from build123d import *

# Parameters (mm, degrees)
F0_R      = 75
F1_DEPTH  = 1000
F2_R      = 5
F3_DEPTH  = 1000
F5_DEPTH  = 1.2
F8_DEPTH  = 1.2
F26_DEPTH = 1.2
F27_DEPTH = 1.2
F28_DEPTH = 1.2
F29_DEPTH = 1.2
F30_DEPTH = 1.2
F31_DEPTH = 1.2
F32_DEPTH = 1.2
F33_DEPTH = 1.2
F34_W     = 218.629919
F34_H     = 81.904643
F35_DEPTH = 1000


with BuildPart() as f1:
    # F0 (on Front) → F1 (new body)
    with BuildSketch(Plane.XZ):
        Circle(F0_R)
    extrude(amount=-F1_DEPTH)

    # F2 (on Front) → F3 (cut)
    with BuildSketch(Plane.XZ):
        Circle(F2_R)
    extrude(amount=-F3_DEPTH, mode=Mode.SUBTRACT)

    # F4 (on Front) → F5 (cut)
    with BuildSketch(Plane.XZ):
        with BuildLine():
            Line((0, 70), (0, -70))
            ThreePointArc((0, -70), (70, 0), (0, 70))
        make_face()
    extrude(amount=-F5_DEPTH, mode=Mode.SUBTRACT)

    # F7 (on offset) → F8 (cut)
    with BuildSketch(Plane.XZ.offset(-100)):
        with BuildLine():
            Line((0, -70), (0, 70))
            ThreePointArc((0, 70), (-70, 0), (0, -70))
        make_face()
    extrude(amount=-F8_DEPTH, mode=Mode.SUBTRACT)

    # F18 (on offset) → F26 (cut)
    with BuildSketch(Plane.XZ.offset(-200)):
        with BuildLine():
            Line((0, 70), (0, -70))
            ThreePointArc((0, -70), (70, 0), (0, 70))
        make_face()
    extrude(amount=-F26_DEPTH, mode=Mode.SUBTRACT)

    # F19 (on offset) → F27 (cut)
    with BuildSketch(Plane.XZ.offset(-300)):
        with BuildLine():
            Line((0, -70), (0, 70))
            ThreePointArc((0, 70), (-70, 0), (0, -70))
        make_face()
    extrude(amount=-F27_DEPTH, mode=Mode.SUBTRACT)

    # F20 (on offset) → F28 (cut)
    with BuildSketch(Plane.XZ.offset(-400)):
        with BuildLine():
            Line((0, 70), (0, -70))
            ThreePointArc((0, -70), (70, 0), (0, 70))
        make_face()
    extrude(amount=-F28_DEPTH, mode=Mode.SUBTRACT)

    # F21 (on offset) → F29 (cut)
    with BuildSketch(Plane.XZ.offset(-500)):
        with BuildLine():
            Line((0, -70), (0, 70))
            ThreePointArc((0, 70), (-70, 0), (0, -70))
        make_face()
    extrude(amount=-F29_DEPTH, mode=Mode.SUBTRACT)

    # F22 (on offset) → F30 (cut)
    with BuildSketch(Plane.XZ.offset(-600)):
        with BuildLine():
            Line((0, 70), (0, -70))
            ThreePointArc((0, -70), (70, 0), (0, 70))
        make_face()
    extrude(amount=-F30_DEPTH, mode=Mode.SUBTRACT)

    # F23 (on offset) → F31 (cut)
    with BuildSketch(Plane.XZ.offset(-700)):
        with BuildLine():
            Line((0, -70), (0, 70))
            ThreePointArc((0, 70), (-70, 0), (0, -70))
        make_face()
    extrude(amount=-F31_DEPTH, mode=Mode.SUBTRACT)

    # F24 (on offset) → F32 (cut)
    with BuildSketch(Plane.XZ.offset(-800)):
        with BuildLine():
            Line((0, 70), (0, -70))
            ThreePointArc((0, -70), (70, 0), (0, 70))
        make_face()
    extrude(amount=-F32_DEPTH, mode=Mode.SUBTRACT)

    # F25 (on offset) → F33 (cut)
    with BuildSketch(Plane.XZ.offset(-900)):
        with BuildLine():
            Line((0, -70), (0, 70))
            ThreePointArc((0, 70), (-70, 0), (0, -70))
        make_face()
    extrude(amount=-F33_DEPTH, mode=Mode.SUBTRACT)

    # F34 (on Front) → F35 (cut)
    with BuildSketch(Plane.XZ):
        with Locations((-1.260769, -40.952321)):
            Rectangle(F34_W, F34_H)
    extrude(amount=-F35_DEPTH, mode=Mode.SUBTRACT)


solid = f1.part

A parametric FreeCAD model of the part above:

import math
import FreeCAD as App
import Part
import Sketcher
from FreeCAD import Vector
Q = App.Units.Quantity

doc = App.newDocument("Part")
body = doc.addObject("PartDesign::Body", "Body")

# Sketch on XZ plane
sketch1 = doc.addObject("Sketcher::SketchObject", "Sketch")
body.addObject(sketch1)
sketch1.AttachmentSupport = (doc.XZ_Plane, [""])
sketch1.MapMode = "FlatFace"
sketch1.addGeometry(Part.Circle(Vector(0, 0, 0), Vector(0, 0, 1), 75), False)
sketch1.addConstraint(Sketcher.Constraint("Coincident", 0, 3, -1, 1))
sketch1.addConstraint(Sketcher.Constraint("Diameter", 0, Q("150 mm")))
pad1 = doc.addObject("PartDesign::Pad", "Pad")
body.addObject(pad1)
pad1.Profile = sketch1
pad1.Length = 1000
pad1.Reversed = True

# Sketch on XZ plane
sketch2 = doc.addObject("Sketcher::SketchObject", "Sketch001")
body.addObject(sketch2)
sketch2.AttachmentSupport = (doc.XZ_Plane, [""])
sketch2.MapMode = "FlatFace"
sketch2.addGeometry(Part.Circle(Vector(0, 0, 0), Vector(0, 0, 1), 5), False)
sketch2.addConstraint(Sketcher.Constraint("Coincident", 0, 3, -1, 1))
sketch2.addConstraint(Sketcher.Constraint("Diameter", 0, Q("10 mm")))
pocket1 = doc.addObject("PartDesign::Pocket", "Pocket")
body.addObject(pocket1)
pocket1.Profile = sketch2
pocket1.Length = 1000

# Sketch on XZ plane
sketch3 = doc.addObject("Sketcher::SketchObject", "Sketch002")
body.addObject(sketch3)
sketch3.AttachmentSupport = (doc.XZ_Plane, [""])
sketch3.MapMode = "FlatFace"
sketch3.addGeometry(Part.LineSegment(Vector(0, 70, 0), Vector(0, -70, 0)), False)
sketch3.addGeometry(Part.ArcOfCircle(Part.Circle(Vector(0, 0, 0), Vector(0, 0, 1), 70), math.radians(-90), math.radians(90)), False)
sketch3.addConstraint(Sketcher.Constraint("Coincident", 0, 1, 1, 2))
sketch3.addConstraint(Sketcher.Constraint("Coincident", 1, 1, 0, 2))
sketch3.addConstraint(Sketcher.Constraint("Vertical", 0))
sketch3.addConstraint(Sketcher.Constraint("Coincident", 1, 3, -1, 1))
sketch3.addConstraint(Sketcher.Constraint("PointOnObject", 0, 1, -2))
sketch3.addConstraint(Sketcher.Constraint("Radius", 1, Q("70 mm")))
pocket2 = doc.addObject("PartDesign::Pocket", "Pocket001")
body.addObject(pocket2)
pocket2.Profile = sketch3
pocket2.Length = 1.2

# Sketch on XZ plane
sketch4 = doc.addObject("Sketcher::SketchObject", "Sketch003")
body.addObject(sketch4)
sketch4.AttachmentSupport = (doc.XZ_Plane, [""])
sketch4.MapMode = "FlatFace"
sketch4.AttachmentOffset = App.Placement(Vector(0, 0, -100), App.Rotation())
sketch4.addGeometry(Part.LineSegment(Vector(0, -70, 0), Vector(0, 70, 0)), False)
sketch4.addGeometry(Part.ArcOfCircle(Part.Circle(Vector(0, 0, 0), Vector(0, 0, 1), 70), math.radians(90), math.radians(270)), False)
sketch4.addConstraint(Sketcher.Constraint("Coincident", 0, 1, 1, 2))
sketch4.addConstraint(Sketcher.Constraint("Coincident", 1, 1, 0, 2))
sketch4.addConstraint(Sketcher.Constraint("Vertical", 0))
sketch4.addConstraint(Sketcher.Constraint("Coincident", 1, 3, -1, 1))
sketch4.addConstraint(Sketcher.Constraint("PointOnObject", 0, 1, -2))
sketch4.addConstraint(Sketcher.Constraint("Radius", 1, Q("70 mm")))
pocket3 = doc.addObject("PartDesign::Pocket", "Pocket002")
body.addObject(pocket3)
pocket3.Profile = sketch4
pocket3.Length = 1.2

# Sketch on XZ plane
sketch5 = doc.addObject("Sketcher::SketchObject", "Sketch004")
body.addObject(sketch5)
sketch5.AttachmentSupport = (doc.XZ_Plane, [""])
sketch5.MapMode = "FlatFace"
sketch5.AttachmentOffset = App.Placement(Vector(0, 0, -200), App.Rotation())
sketch5.addGeometry(Part.LineSegment(Vector(0, 70, 0), Vector(0, -70, 0)), False)
sketch5.addGeometry(Part.ArcOfCircle(Part.Circle(Vector(0, 0, 0), Vector(0, 0, 1), 70), math.radians(-90), math.radians(90)), False)
sketch5.addConstraint(Sketcher.Constraint("Coincident", 0, 1, 1, 2))
sketch5.addConstraint(Sketcher.Constraint("Coincident", 1, 1, 0, 2))
sketch5.addConstraint(Sketcher.Constraint("Vertical", 0))
sketch5.addConstraint(Sketcher.Constraint("Coincident", 1, 3, -1, 1))
sketch5.addConstraint(Sketcher.Constraint("PointOnObject", 0, 1, -2))
sketch5.addConstraint(Sketcher.Constraint("Radius", 1, Q("70 mm")))
pocket4 = doc.addObject("PartDesign::Pocket", "Pocket003")
body.addObject(pocket4)
pocket4.Profile = sketch5
pocket4.Length = 1.2

# Sketch on XZ plane
sketch6 = doc.addObject("Sketcher::SketchObject", "Sketch005")
body.addObject(sketch6)
sketch6.AttachmentSupport = (doc.XZ_Plane, [""])
sketch6.MapMode = "FlatFace"
sketch6.AttachmentOffset = App.Placement(Vector(0, 0, -300), App.Rotation())
sketch6.addGeometry(Part.LineSegment(Vector(0, -70, 0), Vector(0, 70, 0)), False)
sketch6.addGeometry(Part.ArcOfCircle(Part.Circle(Vector(0, 0, 0), Vector(0, 0, 1), 70), math.radians(90), math.radians(270)), False)
sketch6.addConstraint(Sketcher.Constraint("Coincident", 0, 1, 1, 2))
sketch6.addConstraint(Sketcher.Constraint("Coincident", 1, 1, 0, 2))
sketch6.addConstraint(Sketcher.Constraint("Vertical", 0))
sketch6.addConstraint(Sketcher.Constraint("Coincident", 1, 3, -1, 1))
sketch6.addConstraint(Sketcher.Constraint("PointOnObject", 0, 1, -2))
sketch6.addConstraint(Sketcher.Constraint("Radius", 1, Q("70 mm")))
pocket5 = doc.addObject("PartDesign::Pocket", "Pocket004")
body.addObject(pocket5)
pocket5.Profile = sketch6
pocket5.Length = 1.2

# Sketch on XZ plane
sketch7 = doc.addObject("Sketcher::SketchObject", "Sketch006")
body.addObject(sketch7)
sketch7.AttachmentSupport = (doc.XZ_Plane, [""])
sketch7.MapMode = "FlatFace"
sketch7.AttachmentOffset = App.Placement(Vector(0, 0, -400), App.Rotation())
sketch7.addGeometry(Part.LineSegment(Vector(0, 70, 0), Vector(0, -70, 0)), False)
sketch7.addGeometry(Part.ArcOfCircle(Part.Circle(Vector(0, 0, 0), Vector(0, 0, 1), 70), math.radians(-90), math.radians(90)), False)
sketch7.addConstraint(Sketcher.Constraint("Coincident", 0, 1, 1, 2))
sketch7.addConstraint(Sketcher.Constraint("Coincident", 1, 1, 0, 2))
sketch7.addConstraint(Sketcher.Constraint("Vertical", 0))
sketch7.addConstraint(Sketcher.Constraint("Coincident", 1, 3, -1, 1))
sketch7.addConstraint(Sketcher.Constraint("PointOnObject", 0, 1, -2))
sketch7.addConstraint(Sketcher.Constraint("Radius", 1, Q("70 mm")))
pocket6 = doc.addObject("PartDesign::Pocket", "Pocket005")
body.addObject(pocket6)
pocket6.Profile = sketch7
pocket6.Length = 1.2

# Sketch on XZ plane
sketch8 = doc.addObject("Sketcher::SketchObject", "Sketch007")
body.addObject(sketch8)
sketch8.AttachmentSupport = (doc.XZ_Plane, [""])
sketch8.MapMode = "FlatFace"
sketch8.AttachmentOffset = App.Placement(Vector(0, 0, -500), App.Rotation())
sketch8.addGeometry(Part.LineSegment(Vector(0, -70, 0), Vector(0, 70, 0)), False)
sketch8.addGeometry(Part.ArcOfCircle(Part.Circle(Vector(0, 0, 0), Vector(0, 0, 1), 70), math.radians(90), math.radians(270)), False)
sketch8.addConstraint(Sketcher.Constraint("Coincident", 0, 1, 1, 2))
sketch8.addConstraint(Sketcher.Constraint("Coincident", 1, 1, 0, 2))
sketch8.addConstraint(Sketcher.Constraint("Vertical", 0))
sketch8.addConstraint(Sketcher.Constraint("Coincident", 1, 3, -1, 1))
sketch8.addConstraint(Sketcher.Constraint("PointOnObject", 0, 1, -2))
sketch8.addConstraint(Sketcher.Constraint("Radius", 1, Q("70 mm")))
pocket7 = doc.addObject("PartDesign::Pocket", "Pocket006")
body.addObject(pocket7)
pocket7.Profile = sketch8
pocket7.Length = 1.2

# Sketch on XZ plane
sketch9 = doc.addObject("Sketcher::SketchObject", "Sketch008")
body.addObject(sketch9)
sketch9.AttachmentSupport = (doc.XZ_Plane, [""])
sketch9.MapMode = "FlatFace"
sketch9.AttachmentOffset = App.Placement(Vector(0, 0, -600), App.Rotation())
sketch9.addGeometry(Part.LineSegment(Vector(0, 70, 0), Vector(0, -70, 0)), False)
sketch9.addGeometry(Part.ArcOfCircle(Part.Circle(Vector(0, 0, 0), Vector(0, 0, 1), 70), math.radians(-90), math.radians(90)), False)
sketch9.addConstraint(Sketcher.Constraint("Coincident", 0, 1, 1, 2))
sketch9.addConstraint(Sketcher.Constraint("Coincident", 1, 1, 0, 2))
sketch9.addConstraint(Sketcher.Constraint("Vertical", 0))
sketch9.addConstraint(Sketcher.Constraint("Coincident", 1, 3, -1, 1))
sketch9.addConstraint(Sketcher.Constraint("PointOnObject", 0, 1, -2))
sketch9.addConstraint(Sketcher.Constraint("Radius", 1, Q("70 mm")))
pocket8 = doc.addObject("PartDesign::Pocket", "Pocket007")
body.addObject(pocket8)
pocket8.Profile = sketch9
pocket8.Length = 1.2

# Sketch on XZ plane
sketch10 = doc.addObject("Sketcher::SketchObject", "Sketch009")
body.addObject(sketch10)
sketch10.AttachmentSupport = (doc.XZ_Plane, [""])
sketch10.MapMode = "FlatFace"
sketch10.AttachmentOffset = App.Placement(Vector(0, 0, -700), App.Rotation())
sketch10.addGeometry(Part.LineSegment(Vector(0, -70, 0), Vector(0, 70, 0)), False)
sketch10.addGeometry(Part.ArcOfCircle(Part.Circle(Vector(0, 0, 0), Vector(0, 0, 1), 70), math.radians(90), math.radians(270)), False)
sketch10.addConstraint(Sketcher.Constraint("Coincident", 0, 1, 1, 2))
sketch10.addConstraint(Sketcher.Constraint("Coincident", 1, 1, 0, 2))
sketch10.addConstraint(Sketcher.Constraint("Vertical", 0))
sketch10.addConstraint(Sketcher.Constraint("Coincident", 1, 3, -1, 1))
sketch10.addConstraint(Sketcher.Constraint("PointOnObject", 0, 1, -2))
sketch10.addConstraint(Sketcher.Constraint("Radius", 1, Q("70 mm")))
pocket9 = doc.addObject("PartDesign::Pocket", "Pocket008")
body.addObject(pocket9)
pocket9.Profile = sketch10
pocket9.Length = 1.2

# Sketch on XZ plane
sketch11 = doc.addObject("Sketcher::SketchObject", "Sketch010")
body.addObject(sketch11)
sketch11.AttachmentSupport = (doc.XZ_Plane, [""])
sketch11.MapMode = "FlatFace"
sketch11.AttachmentOffset = App.Placement(Vector(0, 0, -800), App.Rotation())
sketch11.addGeometry(Part.LineSegment(Vector(0, 70, 0), Vector(0, -70, 0)), False)
sketch11.addGeometry(Part.ArcOfCircle(Part.Circle(Vector(0, 0, 0), Vector(0, 0, 1), 70), math.radians(-90), math.radians(90)), False)
sketch11.addConstraint(Sketcher.Constraint("Coincident", 0, 1, 1, 2))
sketch11.addConstraint(Sketcher.Constraint("Coincident", 1, 1, 0, 2))
sketch11.addConstraint(Sketcher.Constraint("Vertical", 0))
sketch11.addConstraint(Sketcher.Constraint("Coincident", 1, 3, -1, 1))
sketch11.addConstraint(Sketcher.Constraint("PointOnObject", 0, 1, -2))
sketch11.addConstraint(Sketcher.Constraint("Radius", 1, Q("70 mm")))
pocket10 = doc.addObject("PartDesign::Pocket", "Pocket009")
body.addObject(pocket10)
pocket10.Profile = sketch11
pocket10.Length = 1.2

# Sketch on XZ plane
sketch12 = doc.addObject("Sketcher::SketchObject", "Sketch011")
body.addObject(sketch12)
sketch12.AttachmentSupport = (doc.XZ_Plane, [""])
sketch12.MapMode = "FlatFace"
sketch12.AttachmentOffset = App.Placement(Vector(0, 0, -900), App.Rotation())
sketch12.addGeometry(Part.LineSegment(Vector(0, -70, 0), Vector(0, 70, 0)), False)
sketch12.addGeometry(Part.ArcOfCircle(Part.Circle(Vector(0, 0, 0), Vector(0, 0, 1), 70), math.radians(90), math.radians(270)), False)
sketch12.addConstraint(Sketcher.Constraint("Coincident", 0, 1, 1, 2))
sketch12.addConstraint(Sketcher.Constraint("Coincident", 1, 1, 0, 2))
sketch12.addConstraint(Sketcher.Constraint("Vertical", 0))
sketch12.addConstraint(Sketcher.Constraint("Coincident", 1, 3, -1, 1))
sketch12.addConstraint(Sketcher.Constraint("PointOnObject", 0, 1, -2))
sketch12.addConstraint(Sketcher.Constraint("Radius", 1, Q("70 mm")))
pocket11 = doc.addObject("PartDesign::Pocket", "Pocket010")
body.addObject(pocket11)
pocket11.Profile = sketch12
pocket11.Length = 1.2

# Sketch on XZ plane
sketch13 = doc.addObject("Sketcher::SketchObject", "Sketch012")
body.addObject(sketch13)
sketch13.AttachmentSupport = (doc.XZ_Plane, [""])
sketch13.MapMode = "FlatFace"
sketch13.addGeometry(Part.LineSegment(Vector(-111, 0, 0), Vector(-111, -82, 0)), False)
sketch13.addGeometry(Part.LineSegment(Vector(-111, -82, 0), Vector(108, -82, 0)), False)
sketch13.addGeometry(Part.LineSegment(Vector(108, -82, 0), Vector(108, 0, 0)), False)
sketch13.addGeometry(Part.LineSegment(Vector(108, 0, 0), Vector(-111, 0, 0)), False)
sketch13.addConstraint(Sketcher.Constraint("Coincident", 0, 2, 1, 1))
sketch13.addConstraint(Sketcher.Constraint("Coincident", 1, 2, 2, 1))
sketch13.addConstraint(Sketcher.Constraint("Coincident", 2, 2, 3, 1))
sketch13.addConstraint(Sketcher.Constraint("Coincident", 3, 2, 0, 1))
sketch13.addConstraint(Sketcher.Constraint("Vertical", 0))
sketch13.addConstraint(Sketcher.Constraint("Horizontal", 1))
sketch13.addConstraint(Sketcher.Constraint("Vertical", 2))
sketch13.addConstraint(Sketcher.Constraint("Horizontal", 3))
sketch13.addConstraint(Sketcher.Constraint("PointOnObject", 2, 2, -1))
sketch13.addConstraint(Sketcher.Constraint("DistanceX", 1, 1, 1, 2, Q("218.629919 mm")))
sketch13.addConstraint(Sketcher.Constraint("DistanceY", 0, 2, 0, 1, Q("81.904643 mm")))
sketch13.addConstraint(Sketcher.Constraint("DistanceX", 0, 2, -1, 1, Q("110.575728 mm")))
pocket12 = doc.addObject("PartDesign::Pocket", "Pocket011")
body.addObject(pocket12)
pocket12.Profile = sketch13
pocket12.Length = 1000

doc.recompute()
